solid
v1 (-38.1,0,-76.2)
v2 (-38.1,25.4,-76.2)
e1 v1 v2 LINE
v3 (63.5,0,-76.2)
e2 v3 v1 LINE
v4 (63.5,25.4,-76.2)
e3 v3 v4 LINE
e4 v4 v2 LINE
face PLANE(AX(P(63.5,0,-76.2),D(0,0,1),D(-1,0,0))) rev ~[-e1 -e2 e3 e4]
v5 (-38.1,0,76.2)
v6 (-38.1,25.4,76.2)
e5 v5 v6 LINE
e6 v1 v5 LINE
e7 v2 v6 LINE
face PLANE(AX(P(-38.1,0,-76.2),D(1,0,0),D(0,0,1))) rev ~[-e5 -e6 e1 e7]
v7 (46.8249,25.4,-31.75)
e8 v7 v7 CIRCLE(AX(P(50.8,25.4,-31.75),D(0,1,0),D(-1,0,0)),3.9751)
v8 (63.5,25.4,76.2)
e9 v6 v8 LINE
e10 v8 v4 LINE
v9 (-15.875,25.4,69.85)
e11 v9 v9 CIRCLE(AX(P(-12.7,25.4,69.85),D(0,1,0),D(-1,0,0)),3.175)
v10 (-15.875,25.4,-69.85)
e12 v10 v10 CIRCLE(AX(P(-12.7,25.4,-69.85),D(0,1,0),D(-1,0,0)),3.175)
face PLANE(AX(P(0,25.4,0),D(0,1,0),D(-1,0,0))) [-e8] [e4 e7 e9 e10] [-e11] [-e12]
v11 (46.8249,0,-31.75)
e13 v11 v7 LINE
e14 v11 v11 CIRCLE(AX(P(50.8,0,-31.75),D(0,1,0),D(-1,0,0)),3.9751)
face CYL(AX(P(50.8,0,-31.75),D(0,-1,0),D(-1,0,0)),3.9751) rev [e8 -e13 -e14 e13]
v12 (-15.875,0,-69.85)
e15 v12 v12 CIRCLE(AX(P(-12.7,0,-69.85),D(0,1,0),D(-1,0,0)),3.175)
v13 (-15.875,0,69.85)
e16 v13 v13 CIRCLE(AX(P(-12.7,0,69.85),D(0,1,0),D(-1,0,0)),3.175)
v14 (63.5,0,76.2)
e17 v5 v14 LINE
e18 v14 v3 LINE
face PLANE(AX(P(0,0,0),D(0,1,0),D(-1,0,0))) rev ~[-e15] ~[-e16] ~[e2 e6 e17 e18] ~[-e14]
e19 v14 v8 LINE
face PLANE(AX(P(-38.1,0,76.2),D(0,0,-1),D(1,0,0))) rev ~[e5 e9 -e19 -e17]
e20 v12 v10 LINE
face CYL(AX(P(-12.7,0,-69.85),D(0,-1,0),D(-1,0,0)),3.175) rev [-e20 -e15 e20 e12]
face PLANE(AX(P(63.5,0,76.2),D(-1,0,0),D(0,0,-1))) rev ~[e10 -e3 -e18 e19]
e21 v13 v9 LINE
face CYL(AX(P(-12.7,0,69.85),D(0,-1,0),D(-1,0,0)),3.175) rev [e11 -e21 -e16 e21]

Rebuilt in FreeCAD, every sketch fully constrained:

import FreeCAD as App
import Part
import Sketcher
from FreeCAD import Vector
Q = App.Units.Quantity


def add_polygon(sketch, points):
    """Adds a closed chain of lines whose ends are joined by coincident constraints."""
    first, n = sketch.GeometryCount, len(points)
    for a, b in zip(points, points[1:] + points[:1]):
        sketch.addGeometry(Part.LineSegment(App.Vector(*a, 0), App.Vector(*b, 0)), False)
    for i in range(n):
        sketch.addConstraint(Sketcher.Constraint("Coincident", first + i, 2, first + (i + 1) % n, 1))

doc = App.newDocument("Part")
body = doc.addObject("PartDesign::Body", "Body")

sketch1 = doc.addObject("Sketcher::SketchObject", "Sketch")
body.addObject(sketch1)
sketch1.AttachmentSupport = (doc.XZ_Plane, [""])
sketch1.MapMode = "FlatFace"
add_polygon(sketch1, [(-38.1, -76.2), (-38.1, 76.2), (63.5, 76.2), (63.5, -76.2)])
sketch1.addGeometry(Part.Circle(Vector(50.8, -31.8, 0), Vector(0, 0, 1), 4), False)
sketch1.addGeometry(Part.Circle(Vector(-12.7, -69.8, 0), Vector(0, 0, 1), 3.2), False)
sketch1.addGeometry(Part.Circle(Vector(-12.7, 69.8, 0), Vector(0, 0, 1), 3.2), False)
sketch1.addConstraint([
    Sketcher.Constraint("Vertical", 0),
    Sketcher.Constraint("Horizontal", 1),
    Sketcher.Constraint("Vertical", 2),
    Sketcher.Constraint("Horizontal", 3),
    Sketcher.Constraint("Equal", 5, 6),
    Sketcher.Constraint("Symmetric", 5, 3, 6, 3, -1),
    Sketcher.Constraint("Diameter", 5, Q("0.25 in")),
    Sketcher.Constraint("DistanceX", 1, 1, 1, 2, Q("4 in")),
    Sketcher.Constraint("DistanceY", 0, 1, 0, 2, Q("6 in")),
    Sketcher.Constraint("Diameter", 4, Q("0.313 in")),
    Sketcher.Constraint("DistanceY", 4, 3, 6, 3, Q("4 in")),
    Sketcher.Constraint("DistanceX", 0, 2, 6, 3, Q("1 in")),
    Sketcher.Constraint("DistanceX", 0, 2, -1, 1, Q("1.5 in")),
    Sketcher.Constraint("DistanceY", 5, 3, 4, 3, Q("1.5 in")),
    Sketcher.Constraint("DistanceX", 0, 2, 4, 3, Q("3.5 in")),
    Sketcher.Constraint("DistanceY", 6, 3, 0, 2, Q("0.25 in")),
])
pad1 = doc.addObject("PartDesign::Pad", "Pad")
body.addObject(pad1)
pad1.Profile = sketch1
pad1.Length = Q("1 in")
pad1.Reversed = True

doc.recompute()
